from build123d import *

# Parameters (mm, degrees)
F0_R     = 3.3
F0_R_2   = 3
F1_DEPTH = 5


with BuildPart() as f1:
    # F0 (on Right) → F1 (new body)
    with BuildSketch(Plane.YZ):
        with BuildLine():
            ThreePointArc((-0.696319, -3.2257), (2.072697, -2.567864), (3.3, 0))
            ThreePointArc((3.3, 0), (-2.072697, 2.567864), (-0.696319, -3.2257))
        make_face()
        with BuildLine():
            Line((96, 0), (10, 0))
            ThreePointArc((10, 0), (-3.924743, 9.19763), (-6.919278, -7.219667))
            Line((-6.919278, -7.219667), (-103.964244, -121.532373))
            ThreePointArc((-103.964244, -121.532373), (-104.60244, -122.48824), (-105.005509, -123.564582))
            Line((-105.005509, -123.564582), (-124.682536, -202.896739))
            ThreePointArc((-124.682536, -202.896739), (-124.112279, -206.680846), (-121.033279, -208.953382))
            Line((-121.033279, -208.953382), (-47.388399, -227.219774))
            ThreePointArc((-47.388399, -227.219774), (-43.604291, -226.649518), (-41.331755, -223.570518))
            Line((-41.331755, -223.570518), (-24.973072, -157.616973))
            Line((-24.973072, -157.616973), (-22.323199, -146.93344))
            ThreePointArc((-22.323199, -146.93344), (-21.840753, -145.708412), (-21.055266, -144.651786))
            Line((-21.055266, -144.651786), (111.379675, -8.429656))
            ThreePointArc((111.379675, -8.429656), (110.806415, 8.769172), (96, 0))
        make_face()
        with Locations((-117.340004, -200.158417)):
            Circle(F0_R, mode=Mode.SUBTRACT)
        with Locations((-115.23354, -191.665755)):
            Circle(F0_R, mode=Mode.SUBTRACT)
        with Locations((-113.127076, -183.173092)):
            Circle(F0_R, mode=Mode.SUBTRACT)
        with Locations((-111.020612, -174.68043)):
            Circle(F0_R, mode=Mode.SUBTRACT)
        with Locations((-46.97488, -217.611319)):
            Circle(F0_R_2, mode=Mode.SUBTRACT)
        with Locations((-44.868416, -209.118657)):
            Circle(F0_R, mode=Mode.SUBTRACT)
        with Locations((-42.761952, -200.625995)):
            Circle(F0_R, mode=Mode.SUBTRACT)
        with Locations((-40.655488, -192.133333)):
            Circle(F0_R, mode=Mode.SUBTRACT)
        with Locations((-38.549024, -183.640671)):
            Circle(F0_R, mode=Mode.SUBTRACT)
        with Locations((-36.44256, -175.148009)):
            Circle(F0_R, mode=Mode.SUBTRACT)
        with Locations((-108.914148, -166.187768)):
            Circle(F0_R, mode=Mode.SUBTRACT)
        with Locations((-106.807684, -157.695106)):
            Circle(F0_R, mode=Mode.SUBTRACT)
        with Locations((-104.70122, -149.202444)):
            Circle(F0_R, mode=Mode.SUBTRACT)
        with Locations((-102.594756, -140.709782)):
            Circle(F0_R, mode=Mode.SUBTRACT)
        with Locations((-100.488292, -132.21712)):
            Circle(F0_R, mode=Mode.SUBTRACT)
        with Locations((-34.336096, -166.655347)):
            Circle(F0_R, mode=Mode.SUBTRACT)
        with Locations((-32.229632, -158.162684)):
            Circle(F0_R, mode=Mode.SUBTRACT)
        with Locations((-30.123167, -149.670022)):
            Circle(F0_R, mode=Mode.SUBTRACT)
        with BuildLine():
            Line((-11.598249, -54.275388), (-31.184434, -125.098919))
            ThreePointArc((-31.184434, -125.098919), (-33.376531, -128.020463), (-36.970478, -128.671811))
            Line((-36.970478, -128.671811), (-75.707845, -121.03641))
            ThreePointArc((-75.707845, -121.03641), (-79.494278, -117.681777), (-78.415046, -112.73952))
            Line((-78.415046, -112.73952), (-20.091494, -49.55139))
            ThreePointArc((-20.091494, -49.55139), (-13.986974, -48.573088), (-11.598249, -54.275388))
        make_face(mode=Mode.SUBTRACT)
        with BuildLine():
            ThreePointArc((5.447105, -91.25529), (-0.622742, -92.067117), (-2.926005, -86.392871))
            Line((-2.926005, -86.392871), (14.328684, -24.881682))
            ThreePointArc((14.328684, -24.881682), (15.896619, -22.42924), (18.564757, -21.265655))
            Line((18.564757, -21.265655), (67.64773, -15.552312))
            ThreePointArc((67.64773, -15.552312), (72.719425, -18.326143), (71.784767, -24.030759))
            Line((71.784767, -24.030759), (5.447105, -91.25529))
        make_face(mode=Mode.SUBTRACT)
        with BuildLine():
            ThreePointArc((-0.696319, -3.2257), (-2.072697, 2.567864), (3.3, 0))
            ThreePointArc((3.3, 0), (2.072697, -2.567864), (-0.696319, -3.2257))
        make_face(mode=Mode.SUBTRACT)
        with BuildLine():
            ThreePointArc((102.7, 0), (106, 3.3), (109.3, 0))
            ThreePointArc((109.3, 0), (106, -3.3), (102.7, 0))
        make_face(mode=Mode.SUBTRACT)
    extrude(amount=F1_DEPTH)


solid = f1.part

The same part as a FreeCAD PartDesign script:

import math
import FreeCAD as App
import Part
import Sketcher
from FreeCAD import Vector
Q = App.Units.Quantity

doc = App.newDocument("Part")
body = doc.addObject("PartDesign::Body", "Body")

sketch1 = body.newObject("Sketcher::SketchObject", "Sketch")
sketch1.AttachmentSupport = (doc.getObject("YZ_Plane"), [""])
sketch1.MapMode = "FlatFace"
sketch1.addGeometry(Part.LineSegment(Vector(96, 0, 0), Vector(10, 0, 0)), False)
sketch1.addGeometry(Part.ArcOfCircle(Part.Circle(Vector(0, 0, 0), Vector(0, 0, 1), 10), math.radians(-0.000001), math.radians(226.217096)), False)
sketch1.addGeometry(Part.LineSegment(Vector(-6.919278, -7.219667, 0), Vector(-103.964244, -121.532373, 0)), False)
sketch1.addGeometry(Part.ArcOfCircle(Part.Circle(Vector(-100.152552, -124.768278, 0), Vector(0, 0, 1), 5.000007), math.radians(139.67068), math.radians(166.069853)), False)
sketch1.addGeometry(Part.LineSegment(Vector(-105.005509, -123.564582, 0), Vector(-124.682536, -202.896739, 0)), False)
sketch1.addGeometry(Part.ArcOfCircle(Part.Circle(Vector(-119.829585, -204.100431, 0), Vector(0, 0, 1), 5.000001), math.radians(166.069876), math.radians(256.06985)), False)
sketch1.addGeometry(Part.LineSegment(Vector(-121.033279, -208.953382, 0), Vector(-47.388399, -227.219774, 0)), False)
sketch1.addGeometry(Part.ArcOfCircle(Part.Circle(Vector(-46.184705, -222.366824, 0), Vector(0, 0, 1), 5), math.radians(-103.930152), math.radians(-13.930144)), False)
sketch1.addGeometry(Part.LineSegment(Vector(-41.331755, -223.570518, 0), Vector(-24.973072, -157.616973, 0)), False)
sketch1.addGeometry(Part.LineSegment(Vector(-24.973072, -157.616973, 0), Vector(-22.323199, -146.93344, 0)), False)
sketch1.addGeometry(Part.ArcOfCircle(Part.Circle(Vector(-17.470238, -148.137141, 0), Vector(0, 0, 1), 5.000013), math.radians(135.807657), math.radians(166.069802)), False)
sketch1.addGeometry(Part.LineSegment(Vector(-21.055266, -144.651786, 0), Vector(111.379675, -8.429656, 0)), False)
sketch1.addGeometry(Part.ArcOfCircle(Part.Circle(Vector(106, 0, 0), Vector(0, 0, 1), 10), math.radians(-57.454616), math.radians(180)), False)
sketch1.addGeometry(Part.Circle(Vector(-117.340004, -200.158417, 0), Vector(0, 0, 1), 3.3), False)
sketch1.addGeometry(Part.Circle(Vector(-115.23354, -191.665755, 0), Vector(0, 0, 1), 3.3), False)
sketch1.addGeometry(Part.Circle(Vector(-113.127076, -183.173092, 0), Vector(0, 0, 1), 3.3), False)
sketch1.addGeometry(Part.Circle(Vector(-111.020612, -174.68043, 0), Vector(0, 0, 1), 3.3), False)
sketch1.addGeometry(Part.Circle(Vector(-108.914148, -166.187768, 0), Vector(0, 0, 1), 3.3), False)
sketch1.addGeometry(Part.Circle(Vector(-46.97488, -217.611319, 0), Vector(0, 0, 1), 3), False)
sketch1.addGeometry(Part.Circle(Vector(-44.868416, -209.118657, 0), Vector(0, 0, 1), 3.3), False)
sketch1.addGeometry(Part.Circle(Vector(-42.761952, -200.625995, 0), Vector(0, 0, 1), 3.3), False)
sketch1.addGeometry(Part.Circle(Vector(-40.655488, -192.133333, 0), Vector(0, 0, 1), 3.3), False)
sketch1.addGeometry(Part.Circle(Vector(-38.549024, -183.640671, 0), Vector(0, 0, 1), 3.3), False)
sketch1.addGeometry(Part.Circle(Vector(-36.44256, -175.148009, 0), Vector(0, 0, 1), 3.3), False)
sketch1.addGeometry(Part.Circle(Vector(-34.336096, -166.655347, 0), Vector(0, 0, 1), 3.3), False)
sketch1.addGeometry(Part.Circle(Vector(-106.807684, -157.695106, 0), Vector(0, 0, 1), 3.3), False)
sketch1.addGeometry(Part.Circle(Vector(-104.70122, -149.202444, 0), Vector(0, 0, 1), 3.3), False)
sketch1.addGeometry(Part.Circle(Vector(-102.594756, -140.709782, 0), Vector(0, 0, 1), 3.3), False)
sketch1.addGeometry(Part.Circle(Vector(-100.488292, -132.21712, 0), Vector(0, 0, 1), 3.3), False)
sketch1.addGeometry(Part.Circle(Vector(-32.229632, -158.162684, 0), Vector(0, 0, 1), 3.3), False)
sketch1.addGeometry(Part.Circle(Vector(-30.123167, -149.670022, 0), Vector(0, 0, 1), 3.3), False)
sketch1.addGeometry(Part.ArcOfCircle(Part.Circle(Vector(-16.417362, -52.942666, 0), Vector(0, 0, 1), 5), math.radians(-15.458741), math.radians(137.292549)), False)
sketch1.addGeometry(Part.LineSegment(Vector(-11.598249, -54.275388, 0), Vector(-31.184434, -125.098919, 0)), False)
sketch1.addGeometry(Part.ArcOfCircle(Part.Circle(Vector(-36.003549, -123.766194, 0), Vector(0, 0, 1), 5.000003), math.radians(-101.150434), math.radians(-15.458764)), False)
sketch1.addGeometry(Part.LineSegment(Vector(-36.970478, -128.671811, 0), Vector(-75.707845, -121.03641, 0)), False)
sketch1.addGeometry(Part.ArcOfCircle(Part.Circle(Vector(-74.740916, -116.130797, 0), Vector(0, 0, 1), 4.999999), math.radians(137.29253), math.radians(258.849553)), False)
sketch1.addGeometry(Part.LineSegment(Vector(-78.415046, -112.73952, 0), Vector(-20.091494, -49.55139, 0)), False)
sketch1.addGeometry(Part.LineSegment(Vector(71.784767, -24.030759, 0), Vector(5.447105, -91.25529, 0)), False)
sketch1.addGeometry(Part.ArcOfCircle(Part.Circle(Vector(1.888173, -87.743311, 0), Vector(0, 0, 1), 5), math.radians(164.330501), math.radians(315.380452)), False)
sketch1.addGeometry(Part.LineSegment(Vector(-2.926005, -86.392871, 0), Vector(14.328684, -24.881682, 0)), False)
sketch1.addGeometry(Part.ArcOfCircle(Part.Circle(Vector(19.14286, -26.232119, 0), Vector(0, 0, 1), 4.999997), math.radians(96.639423), math.radians(164.330521)), False)
sketch1.addGeometry(Part.LineSegment(Vector(18.564757, -21.265655, 0), Vector(67.64773, -15.552312, 0)), False)
sketch1.addGeometry(Part.ArcOfCircle(Part.Circle(Vector(68.225835, -20.518779, 0), Vector(0, 0, 1), 5), math.radians(-44.619558), math.radians(96.639451)), False)
sketch1.addGeometry(Part.ArcOfCircle(Part.Circle(Vector(-0.000001, 0.000001, 0), Vector(0, 0, 1), 3.300001), math.radians(-102.181287), math.radians(-0.00001)), False)
sketch1.addGeometry(Part.ArcOfCircle(Part.Circle(Vector(0, 0, 0), Vector(0, 0, 1), 3.3), math.radians(0.000003), math.radians(257.8187)), False)
sketch1.addGeometry(Part.Circle(Vector(106, 0, 0), Vector(0, 0, 1), 3.3), False)
sketch1.addConstraint(Sketcher.Constraint("Coincident", 0, 2, 1, 1))
sketch1.addConstraint(Sketcher.Constraint("Coincident", 1, 2, 2, 1))
sketch1.addConstraint(Sketcher.Constraint("Coincident", 2, 2, 3, 1))
sketch1.addConstraint(Sketcher.Constraint("Coincident", 3, 2, 4, 1))
sketch1.addConstraint(Sketcher.Constraint("Coincident", 4, 2, 5, 1))
sketch1.addConstraint(Sketcher.Constraint("Coincident", 5, 2, 6, 1))
sketch1.addConstraint(Sketcher.Constraint("Coincident", 6, 2, 7, 1))
sketch1.addConstraint(Sketcher.Constraint("Coincident", 7, 2, 8, 1))
sketch1.addConstraint(Sketcher.Constraint("Coincident", 8, 2, 9, 1))
sketch1.addConstraint(Sketcher.Constraint("Coincident", 9, 2, 10, 2))
sketch1.addConstraint(Sketcher.Constraint("Coincident", 10, 1, 11, 1))
sketch1.addConstraint(Sketcher.Constraint("Coincident", 11, 2, 12, 1))
sketch1.addConstraint(Sketcher.Constraint("Coincident", 12, 2, 0, 1))
sketch1.addConstraint(Sketcher.Constraint("Coincident", 31, 1, 32, 1))
sketch1.addConstraint(Sketcher.Constraint("Coincident", 32, 2, 33, 2))
sketch1.addConstraint(Sketcher.Constraint("Coincident", 33, 1, 34, 1))
sketch1.addConstraint(Sketcher.Constraint("Coincident", 34, 2, 35, 2))
sketch1.addConstraint(Sketcher.Constraint("Coincident", 35, 1, 36, 1))
sketch1.addConstraint(Sketcher.Constraint("Coincident", 36, 2, 31, 2))
sketch1.addConstraint(Sketcher.Constraint("Coincident", 37, 2, 38, 2))
sketch1.addConstraint(Sketcher.Constraint("Coincident", 38, 1, 39, 1))
sketch1.addConstraint(Sketcher.Constraint("Coincident", 39, 2, 40, 2))
sketch1.addConstraint(Sketcher.Constraint("Coincident", 40, 1, 41, 1))
sketch1.addConstraint(Sketcher.Constraint("Coincident", 41, 2, 42, 2))
sketch1.addConstraint(Sketcher.Constraint("Coincident", 42, 1, 37, 1))
sketch1.addConstraint(Sketcher.Constraint("Coincident", 43, 1, 44, 2))
sketch1.addConstraint(Sketcher.Constraint("Coincident", 44, 1, 43, 2))
sketch1.addConstraint(Sketcher.Constraint("Horizontal", 0))
sketch1.addConstraint(Sketcher.Constraint("Coincident", 1, 3, -1, 1))
sketch1.addConstraint(Sketcher.Constraint("Coincident", 43, 3, -1, 1))
sketch1.addConstraint(Sketcher.Constraint("Coincident", 45, 3, 12, 3))
sketch1.addConstraint(Sketcher.Constraint("PointOnObject", 12, 3, -1))
sketch1.addConstraint(Sketcher.Constraint("PointOnObject", 0, 2, -1))
sketch1.addConstraint(Sketcher.Constraint("PointOnObject", 44, 1, -1))
sketch1.addConstraint(Sketcher.Constraint("Diameter", 18, Q("6 mm")))
sketch1.addConstraint(Sketcher.Constraint("Radius", 1, Q("10 mm")))
sketch1.addConstraint(Sketcher.Constraint("Radius", 5, Q("5.000001 mm")))
sketch1.addConstraint(Sketcher.Constraint("Radius", 7, Q("5 mm")))
sketch1.addConstraint(Sketcher.Constraint("Radius", 12, Q("10 mm")))
sketch1.addConstraint(Sketcher.Constraint("Radius", 31, Q("5 mm")))
sketch1.addConstraint(Sketcher.Constraint("Radius", 35, Q("4.999999 mm")))
sketch1.addConstraint(Sketcher.Constraint("Radius", 38, Q("5 mm")))
sketch1.addConstraint(Sketcher.Constraint("Radius", 42, Q("5 mm")))
sketch1.addConstraint(Sketcher.Constraint("Diameter", 13, Q("6.6 mm")))
sketch1.addConstraint(Sketcher.Constraint("Diameter", 14, Q("6.6 mm")))
sketch1.addConstraint(Sketcher.Constraint("Diameter", 15, Q("6.6 mm")))
sketch1.addConstraint(Sketcher.Constraint("Diameter", 16, Q("6.6 mm")))
sketch1.addConstraint(Sketcher.Constraint("Diameter", 17, Q("6.6 mm")))
sketch1.addConstraint(Sketcher.Constraint("Diameter", 19, Q("6.6 mm")))
sketch1.addConstraint(Sketcher.Constraint("Diameter", 20, Q("6.6 mm")))
sketch1.addConstraint(Sketcher.Constraint("Diameter", 21, Q("6.6 mm")))
sketch1.addConstraint(Sketcher.Constraint("Diameter", 22, Q("6.6 mm")))
sketch1.addConstraint(Sketcher.Constraint("Diameter", 23, Q("6.6 mm")))
sketch1.addConstraint(Sketcher.Constraint("Diameter", 24, Q("6.6 mm")))
sketch1.addConstraint(Sketcher.Constraint("Diameter", 25, Q("6.6 mm")))
sketch1.addConstraint(Sketcher.Constraint("Diameter", 26, Q("6.6 mm")))
sketch1.addConstraint(Sketcher.Constraint("Diameter", 27, Q("6.6 mm")))
sketch1.addConstraint(Sketcher.Constraint("Diameter", 28, Q("6.6 mm")))
sketch1.addConstraint(Sketcher.Constraint("Diameter", 29, Q("6.6 mm")))
sketch1.addConstraint(Sketcher.Constraint("Diameter", 30, Q("6.6 mm")))
sketch1.addConstraint(Sketcher.Constraint("Diameter", 45, Q("6.6 mm")))
sketch1.addConstraint(Sketcher.Constraint("Radius", 43, Q("3.300001 mm")))
sketch1.addConstraint(Sketcher.Constraint("Radius", 44, Q("3.3 mm")))
sketch1.addConstraint(Sketcher.Constraint("DistanceX", 0, 2, 0, 1, Q("86 mm")))
sketch1.addConstraint(Sketcher.Constraint("DistanceY", 5, 3, 16, 3, Q("29.420001 mm")))
sketch1.addConstraint(Sketcher.Constraint("Radius", 3, Q("5.000007 mm")))
sketch1.addConstraint(Sketcher.Constraint("Radius", 10, Q("5.000013 mm")))
sketch1.addConstraint(Sketcher.Constraint("Radius", 33, Q("5.000003 mm")))
sketch1.addConstraint(Sketcher.Constraint("Radius", 40, Q("4.999997 mm")))
sketch1.addConstraint(Sketcher.Constraint("DistanceX", 6, 2, -1, 1, Q("47.388399 mm")))
sketch1.addConstraint(Sketcher.Constraint("DistanceX", 9, 2, -1, 1, Q("22.323199 mm")))
sketch1.addConstraint(Sketcher.Constraint("DistanceY", 43, 1, -1, 1, Q("3.2257 mm")))
sketch1.addConstraint(Sketcher.Constraint("DistanceX", 13, 3, 7, 3, Q("71.155299 mm")))
sketch1.addConstraint(Sketcher.Constraint("DistanceX", 14, 3, 10, 3, Q("97.763302 mm")))
sketch1.addConstraint(Sketcher.Constraint("DistanceY", 27, 3, 3, 2, Q("17.1452 mm")))
sketch1.addConstraint(Sketcher.Constraint("DistanceY", 7, 2, 18, 3, Q("5.959199 mm")))
sketch1.addConstraint(Sketcher.Constraint("DistanceY", 10, 3, 9, 2, Q("1.203701 mm")))
sketch1.addConstraint(Sketcher.Constraint("DistanceX", 30, 3, 10, 1, Q("9.067901 mm")))
sketch1.addConstraint(Sketcher.Constraint("DistanceX", 2, 2, 34, 2, Q("28.256399 mm")))
sketch1.addConstraint(Sketcher.Constraint("DistanceX", 35, 1, 34, 2, Q("2.707201 mm")))
sketch1.addConstraint(Sketcher.Constraint("DistanceX", 36, 2, 37, 2, Q("25.538599 mm")))
sketch1.addConstraint(Sketcher.Constraint("DistanceY", 37, 2, 36, 2, Q("41.7039 mm")))
sketch1.addConstraint(Sketcher.Constraint("Distance", 6, Q("75.876409 mm")))
sketch1.addConstraint(Sketcher.Constraint("Distance", 11, Q("189.988111 mm")))
sketch1.addConstraint(Sketcher.Constraint("Distance", 32, Q("73.481911 mm")))
sketch1.addConstraint(Sketcher.Constraint("Distance", 34, Q("39.482692 mm")))
sketch1.addConstraint(Sketcher.Constraint("Distance", 36, Q("85.99056 mm")))
sketch1.addConstraint(Sketcher.Constraint("Distance", 39, Q("63.88545 mm")))
sketch1.addConstraint(Sketcher.Constraint("DistanceY", 5, 3, -1, 1, Q("204.100431 mm")))
sketch1.addConstraint(Sketcher.Constraint("DistanceY", 10, 3, -1, 1, Q("148.137141 mm")))
sketch1.addConstraint(Sketcher.Constraint("DistanceY", 15, 3, -1, 1, Q("183.173092 mm")))
sketch1.addConstraint(Sketcher.Constraint("DistanceX", 16, 3, -1, 1, Q("111.020612 mm")))
sketch1.addConstraint(Sketcher.Constraint("DistanceY", 17, 3, -1, 1, Q("166.187768 mm")))
sketch1.addConstraint(Sketcher.Constraint("DistanceX", 18, 3, -1, 1, Q("46.97488 mm")))
sketch1.addConstraint(Sketcher.Constraint("DistanceY", 18, 3, -1, 1, Q("217.611319 mm")))
sketch1.addConstraint(Sketcher.Constraint("DistanceY", 22, 3, -1, 1, Q("183.640671 mm")))
sketch1.addConstraint(Sketcher.Constraint("DistanceX", 23, 3, -1, 1, Q("36.44256 mm")))
sketch1.addConstraint(Sketcher.Constraint("DistanceY", 23, 3, -1, 1, Q("175.148009 mm")))
sketch1.addConstraint(Sketcher.Constraint("DistanceX", 26, 3, -1, 1, Q("104.70122 mm")))
sketch1.addConstraint(Sketcher.Constraint("DistanceY", 27, 3, -1, 1, Q("140.709782 mm")))
sketch1.addConstraint(Sketcher.Constraint("DistanceX", 28, 3, -1, 1, Q("100.488292 mm")))
sketch1.addConstraint(Sketcher.Constraint("DistanceY", 28, 3, -1, 1, Q("132.21712 mm")))
sketch1.addConstraint(Sketcher.Constraint("DistanceY", 30, 3, -1, 1, Q("149.670022 mm")))
sketch1.addConstraint(Sketcher.Constraint("DistanceX", 33, 3, -1, 1, Q("36.003549 mm")))
sketch1.addConstraint(Sketcher.Constraint("DistanceY", 38, 3, -1, 1, Q("87.743311 mm")))
sketch1.addConstraint(Sketcher.Constraint("DistanceX", -1, 1, 40, 3, Q("19.14286 mm")))
sketch1.addConstraint(Sketcher.Constraint("DistanceY", 40, 3, -1, 1, Q("26.232119 mm")))
sketch1.addConstraint(Sketcher.Constraint("DistanceY", 42, 3, -1, 1, Q("20.518779 mm")))
sketch1.addConstraint(Sketcher.Constraint("DistanceX", 3, 2, -1, 1, Q("105.005509 mm")))
sketch1.addConstraint(Sketcher.Constraint("DistanceY", 4, 2, -1, 1, Q("202.896739 mm")))
sketch1.addConstraint(Sketcher.Constraint("DistanceX", 5, 2, -1, 1, Q("121.033279 mm")))
sketch1.addConstraint(Sketcher.Constraint("DistanceX", 8, 2, -1, 1, Q("24.973072 mm")))
sketch1.addConstraint(Sketcher.Constraint("DistanceX", 31, 1, -1, 1, Q("11.598249 mm")))
sketch1.addConstraint(Sketcher.Constraint("DistanceY", 32, 2, -1, 1, Q("125.098919 mm")))
sketch1.addConstraint(Sketcher.Constraint("DistanceY", 33, 1, -1, 1, Q("128.671811 mm")))
sketch1.addConstraint(Sketcher.Constraint("DistanceY", 34, 2, -1, 1, Q("121.03641 mm")))
sketch1.addConstraint(Sketcher.Constraint("DistanceY", 35, 1, -1, 1, Q("112.73952 mm")))
sketch1.addConstraint(Sketcher.Constraint("DistanceY", 36, 2, -1, 1, Q("49.55139 mm")))
sketch1.addConstraint(Sketcher.Constraint("DistanceY", 38, 1, -1, 1, Q("86.392871 mm")))
sketch1.addConstraint(Sketcher.Constraint("DistanceX", -1, 1, 41, 2, Q("67.64773 mm")))
sketch1.addConstraint(Sketcher.Constraint("DistanceY", 42, 1, -1, 1, Q("24.030759 mm")))
sketch1.addConstraint(Sketcher.Constraint("DistanceX", 5, 3, 7, 3, Q("73.64488 mm")))
sketch1.addConstraint(Sketcher.Constraint("DistanceX", 13, 3, 3, 3, Q("17.187452 mm")))
sketch1.addConstraint(Sketcher.Constraint("DistanceY", 13, 3, 3, 3, Q("75.390139 mm")))
sketch1.addConstraint(Sketcher.Constraint("DistanceY", 13, 3, 14, 3, Q("8.492662 mm")))
sketch1.addConstraint(Sketcher.Constraint("DistanceY", 7, 3, 14, 3, Q("30.701069 mm")))
sketch1.addConstraint(Sketcher.Constraint("DistanceX", 5, 3, 15, 3, Q("6.702509 mm")))
sketch1.addConstraint(Sketcher.Constraint("DistanceX", 15, 3, 17, 3, Q("4.212928 mm")))
sketch1.addConstraint(Sketcher.Constraint("DistanceY", 18, 3, 19, 3, Q("8.492662 mm")))
sketch1.addConstraint(Sketcher.Constraint("DistanceX", 7, 3, 19, 3, Q("1.316289 mm")))
sketch1.addConstraint(Sketcher.Constraint("DistanceY", 7, 3, 20, 3, Q("21.740829 mm")))
sketch1.addConstraint(Sketcher.Constraint("DistanceY", 20, 3, 21, 3, Q("8.492662 mm")))
sketch1.addConstraint(Sketcher.Constraint("DistanceX", 19, 3, 21, 3, Q("4.212928 mm")))
sketch1.addConstraint(Sketcher.Constraint("DistanceX", 7, 3, 22, 3, Q("7.635681 mm")))
sketch1.addConstraint(Sketcher.Constraint("DistanceY", 23, 3, 24, 3, Q("8.492662 mm")))
sketch1.addConstraint(Sketcher.Constraint("DistanceX", 22, 3, 24, 3, Q("4.212928 mm")))
sketch1.addConstraint(Sketcher.Constraint("DistanceY", 17, 3, 25, 3, Q("8.492662 mm")))
sketch1.addConstraint(Sketcher.Constraint("DistanceX", 16, 3, 25, 3, Q("4.212928 mm")))
sketch1.addConstraint(Sketcher.Constraint("DistanceY", 25, 3, 26, 3, Q("8.492662 mm")))
sketch1.addConstraint(Sketcher.Constraint("DistanceX", 17, 3, 27, 3, Q("6.319392 mm")))
sketch1.addConstraint(Sketcher.Constraint("DistanceY", 21, 3, 29, 3, Q("33.970649 mm")))
sketch1.addConstraint(Sketcher.Constraint("DistanceX", 30, 3, 10, 3, Q("12.652929 mm")))
sketch1.addConstraint(Sketcher.Constraint("DistanceX", 29, 3, 31, 3, Q("15.81227 mm")))
sketch1.addConstraint(Sketcher.Constraint("DistanceX", 3, 3, 31, 3, Q("83.73519 mm")))
sketch1.addConstraint(Sketcher.Constraint("DistanceX", 1, 2, 44, 3, Q("6.919278 mm")))
sketch1.addConstraint(Sketcher.Constraint("DistanceY", 29, 3, 8, 2, Q("0.545711 mm")))
sketch1.addConstraint(Sketcher.Constraint("DistanceX", 42, 3, 11, 2, Q("43.15384 mm")))
sketch1.addConstraint(Sketcher.Constraint("Distance", 41, Q("49.414376 mm")))
sketch1.addConstraint(Sketcher.Constraint("DistanceX", 20, 3, -1, 1, Q("42.761952 mm")))
pad1 = body.newObject("PartDesign::Pad", "Pad")
pad1.Profile = sketch1
pad1.Length = 5

doc.recompute()
